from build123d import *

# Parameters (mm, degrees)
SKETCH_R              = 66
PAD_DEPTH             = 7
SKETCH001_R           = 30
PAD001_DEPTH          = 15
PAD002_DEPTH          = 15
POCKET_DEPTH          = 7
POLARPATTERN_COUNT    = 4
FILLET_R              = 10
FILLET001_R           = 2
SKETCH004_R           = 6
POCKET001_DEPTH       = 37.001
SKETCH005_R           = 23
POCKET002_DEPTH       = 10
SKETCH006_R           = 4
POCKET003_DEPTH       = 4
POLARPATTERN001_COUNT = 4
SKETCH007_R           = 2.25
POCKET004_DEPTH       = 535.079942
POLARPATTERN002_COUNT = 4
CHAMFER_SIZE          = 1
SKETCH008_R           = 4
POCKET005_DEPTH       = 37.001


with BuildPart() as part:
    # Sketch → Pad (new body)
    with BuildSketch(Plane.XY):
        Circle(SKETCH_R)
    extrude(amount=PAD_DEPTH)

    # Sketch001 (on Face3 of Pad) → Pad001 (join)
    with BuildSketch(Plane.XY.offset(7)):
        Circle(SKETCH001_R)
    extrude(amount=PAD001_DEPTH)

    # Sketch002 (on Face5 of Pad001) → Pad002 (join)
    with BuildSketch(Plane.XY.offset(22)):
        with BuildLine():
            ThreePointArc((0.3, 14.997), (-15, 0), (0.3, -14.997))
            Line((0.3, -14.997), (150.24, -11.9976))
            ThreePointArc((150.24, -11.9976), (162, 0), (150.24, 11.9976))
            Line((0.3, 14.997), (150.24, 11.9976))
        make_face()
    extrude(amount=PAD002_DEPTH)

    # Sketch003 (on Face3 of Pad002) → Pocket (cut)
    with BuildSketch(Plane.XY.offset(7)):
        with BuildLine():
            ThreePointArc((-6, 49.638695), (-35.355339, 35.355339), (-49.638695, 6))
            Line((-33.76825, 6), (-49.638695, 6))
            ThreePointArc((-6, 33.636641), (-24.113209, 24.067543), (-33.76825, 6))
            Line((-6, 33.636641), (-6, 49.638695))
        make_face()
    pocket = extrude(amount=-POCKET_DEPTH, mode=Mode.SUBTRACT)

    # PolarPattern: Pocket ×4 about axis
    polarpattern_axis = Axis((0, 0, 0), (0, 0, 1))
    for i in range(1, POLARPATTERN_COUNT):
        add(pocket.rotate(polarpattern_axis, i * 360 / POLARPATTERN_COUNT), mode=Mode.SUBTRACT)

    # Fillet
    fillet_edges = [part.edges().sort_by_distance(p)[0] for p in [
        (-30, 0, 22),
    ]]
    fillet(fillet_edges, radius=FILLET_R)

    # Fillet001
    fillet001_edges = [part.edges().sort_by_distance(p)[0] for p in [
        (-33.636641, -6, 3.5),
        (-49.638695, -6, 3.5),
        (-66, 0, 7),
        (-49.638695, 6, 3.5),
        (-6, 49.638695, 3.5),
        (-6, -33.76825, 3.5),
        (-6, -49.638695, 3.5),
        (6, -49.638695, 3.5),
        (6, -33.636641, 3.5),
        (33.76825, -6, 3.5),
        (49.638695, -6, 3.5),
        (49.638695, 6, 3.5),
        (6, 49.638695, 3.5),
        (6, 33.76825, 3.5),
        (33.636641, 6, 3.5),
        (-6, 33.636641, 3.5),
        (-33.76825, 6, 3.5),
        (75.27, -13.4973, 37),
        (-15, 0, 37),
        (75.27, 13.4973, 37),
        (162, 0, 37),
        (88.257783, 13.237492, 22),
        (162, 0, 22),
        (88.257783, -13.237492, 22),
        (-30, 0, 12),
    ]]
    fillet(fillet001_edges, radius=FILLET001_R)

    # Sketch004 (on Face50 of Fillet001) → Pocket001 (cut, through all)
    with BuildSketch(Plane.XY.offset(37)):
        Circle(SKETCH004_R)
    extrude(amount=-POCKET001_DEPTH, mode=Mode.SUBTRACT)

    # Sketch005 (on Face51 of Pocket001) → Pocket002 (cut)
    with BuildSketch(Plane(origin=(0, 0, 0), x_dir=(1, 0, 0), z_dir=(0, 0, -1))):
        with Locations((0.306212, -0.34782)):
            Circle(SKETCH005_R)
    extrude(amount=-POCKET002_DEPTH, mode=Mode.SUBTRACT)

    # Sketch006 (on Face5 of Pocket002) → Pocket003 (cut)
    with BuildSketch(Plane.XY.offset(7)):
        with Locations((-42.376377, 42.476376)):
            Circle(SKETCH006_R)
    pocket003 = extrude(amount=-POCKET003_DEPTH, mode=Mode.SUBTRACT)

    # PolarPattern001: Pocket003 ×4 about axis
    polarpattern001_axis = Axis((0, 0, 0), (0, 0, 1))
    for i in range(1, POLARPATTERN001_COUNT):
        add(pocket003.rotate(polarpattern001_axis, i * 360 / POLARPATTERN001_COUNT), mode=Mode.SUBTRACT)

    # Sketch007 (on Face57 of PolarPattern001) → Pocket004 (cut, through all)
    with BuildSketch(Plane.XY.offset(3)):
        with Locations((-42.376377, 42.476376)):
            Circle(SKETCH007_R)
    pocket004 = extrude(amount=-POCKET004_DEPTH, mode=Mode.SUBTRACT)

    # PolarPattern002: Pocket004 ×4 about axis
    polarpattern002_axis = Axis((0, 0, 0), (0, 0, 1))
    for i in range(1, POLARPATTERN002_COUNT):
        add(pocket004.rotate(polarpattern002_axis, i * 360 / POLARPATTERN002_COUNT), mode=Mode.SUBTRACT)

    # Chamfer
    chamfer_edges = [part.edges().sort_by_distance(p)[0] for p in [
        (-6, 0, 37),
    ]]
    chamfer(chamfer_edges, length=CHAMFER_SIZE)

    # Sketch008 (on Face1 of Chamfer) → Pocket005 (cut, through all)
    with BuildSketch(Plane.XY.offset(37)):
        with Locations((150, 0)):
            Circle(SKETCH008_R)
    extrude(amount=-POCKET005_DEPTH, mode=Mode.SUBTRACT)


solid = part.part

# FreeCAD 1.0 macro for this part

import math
import FreeCAD as App
import Part
import Sketcher
from FreeCAD import Vector


def edges_at(feature, points):
    """Names of the edges that pass closest to the given points."""
    edges = feature.Shape.Edges
    near = lambda p: min(range(len(edges)), key=lambda i: edges[i].distToShape(Part.Vertex(*p))[0])
    return sorted({f"Edge{near(p) + 1}" for p in points})

doc = App.newDocument("Part")
body = doc.addObject("PartDesign::Body", "Body")

# Sketch on XY plane
sketch1 = doc.addObject("Sketcher::SketchObject", "Sketch")
body.addObject(sketch1)
sketch1.AttachmentSupport = (doc.XY_Plane, [""])
sketch1.MapMode = "FlatFace"
sketch1.addGeometry(Part.Circle(Vector(0, 0, 0), Vector(0, 0, 1), 66), False)
sketch1.addConstraint(Sketcher.Constraint("Coincident", 0, 3, -1, 1))
sketch1.addConstraint(Sketcher.Constraint("Diameter", 0, 132.0))
pad1 = doc.addObject("PartDesign::Pad", "Pad")
body.addObject(pad1)
pad1.Profile = sketch1
pad1.Length = 7

# Sketch on XY plane
sketch2 = doc.addObject("Sketcher::SketchObject", "Sketch001")
body.addObject(sketch2)
sketch2.AttachmentSupport = (doc.XY_Plane, [""])
sketch2.MapMode = "FlatFace"
sketch2.AttachmentOffset = App.Placement(Vector(0, 0, 7), App.Rotation())
sketch2.addGeometry(Part.Circle(Vector(0, 0, 0), Vector(0, 0, 1), 30), False)
sketch2.addConstraint(Sketcher.Constraint("Coincident", 0, 3, -1, 1))
sketch2.addConstraint(Sketcher.Constraint("Diameter", 0, 60.0))
pad2 = doc.addObject("PartDesign::Pad", "Pad001")
body.addObject(pad2)
pad2.Profile = sketch2
pad2.Length = 15

# Sketch on XY plane
sketch3 = doc.addObject("Sketcher::SketchObject", "Sketch002")
body.addObject(sketch3)
sketch3.AttachmentSupport = (doc.XY_Plane, [""])
sketch3.MapMode = "FlatFace"
sketch3.AttachmentOffset = App.Placement(Vector(0, 0, 22), App.Rotation())
sketch3.addGeometry(Part.ArcOfCircle(Part.Circle(Vector(0, 0, 0), Vector(0, 0, 1), 15), math.radians(88.854009), math.radians(271.145991)), False)
sketch3.addGeometry(Part.LineSegment(Vector(0.3, -14.997, 0), Vector(150.24, -11.9976, 0)), False)
sketch3.addGeometry(Part.ArcOfCircle(Part.Circle(Vector(150, 0, 0), Vector(0, 0, 1), 12), math.radians(-88.854007), math.radians(88.854007)), False)
sketch3.addGeometry(Part.LineSegment(Vector(150.24, 11.9976, 0), Vector(0.3, 14.997, 0)), False)
sketch3.addConstraint(Sketcher.Constraint("Tangent", 0, 2, 1, 1))
sketch3.addConstraint(Sketcher.Constraint("Tangent", 1, 2, 2, 1))
sketch3.addConstraint(Sketcher.Constraint("Tangent", 2, 2, 3, 1))
sketch3.addConstraint(Sketcher.Constraint("Tangent", 3, 2, 0, 1))
sketch3.addConstraint(Sketcher.Constraint("Coincident", 0, 3, -1, 1))
sketch3.addConstraint(Sketcher.Constraint("PointOnObject", 2, 3, -1))
sketch3.addConstraint(Sketcher.Constraint("Radius", 0, 15.0))
sketch3.addConstraint(Sketcher.Constraint("Radius", 2, 12.0))
sketch3.addConstraint(Sketcher.Constraint("DistanceX", -1, 1, 2, 3, 150.0))
pad3 = doc.addObject("PartDesign::Pad", "Pad002")
body.addObject(pad3)
pad3.Profile = sketch3
pad3.Length = 15

# Sketch on XY plane
sketch4 = doc.addObject("Sketcher::SketchObject", "Sketch003")
body.addObject(sketch4)
sketch4.AttachmentSupport = (doc.XY_Plane, [""])
sketch4.MapMode = "FlatFace"
sketch4.AttachmentOffset = App.Placement(Vector(0, 0, 7), App.Rotation())
sketch4.addGeometry(Part.ArcOfCircle(Part.Circle(Vector(0.000002, -0.000002, 0), Vector(0, 0, 1), 50.000002), math.radians(96.892104), math.radians(173.107896)), False)
sketch4.addGeometry(Part.LineSegment(Vector(-49.638695, 6, 0), Vector(-33.76825, 6, 0)), False)
sketch4.addGeometry(Part.ArcOfCircle(Part.Circle(Vector(0.576671, -0.739913, 0), Vector(0, 0, 1), 35.000001), math.radians(100.830541), math.radians(168.897258)), False)
sketch4.addGeometry(Part.LineSegment(Vector(-6, 33.636641, 0), Vector(-6, 49.638695, 0)), False)
sketch4.addConstraint(Sketcher.Constraint("Coincident", 0, 2, 1, 1))
sketch4.addConstraint(Sketcher.Constraint("Coincident", 1, 2, 2, 2))
sketch4.addConstraint(Sketcher.Constraint("Coincident", 2, 1, 3, 1))
sketch4.addConstraint(Sketcher.Constraint("Coincident", 3, 2, 0, 1))
sketch4.addConstraint(Sketcher.Constraint("Horizontal", 1))
sketch4.addConstraint(Sketcher.Constraint("Vertical", 3))
sketch4.addConstraint(Sketcher.Constraint("Coincident", 0, 3, -1, 1))
sketch4.addConstraint(Sketcher.Constraint("Radius", 2, 35.000001))
sketch4.addConstraint(Sketcher.Constraint("DistanceY", -1, 1, 0, 2, 6.0))
sketch4.addConstraint(Sketcher.Constraint("DistanceX", 2, 1, -1, 1, 6.0))
sketch4.addConstraint(Sketcher.Constraint("Radius", 0, 50.000002))
sketch4.addConstraint(Sketcher.Constraint("DistanceX", 1, 1, 1, 2, 15.870445))
sketch4.addConstraint(Sketcher.Constraint("DistanceY", 3, 1, 3, 2, 16.002054))
pocket1 = doc.addObject("PartDesign::Pocket", "Pocket")
body.addObject(pocket1)
pocket1.Profile = sketch4
pocket1.Length = 7
doc.recompute()

polarpattern = doc.addObject("PartDesign::PolarPattern", "PolarPattern")
body.addObject(polarpattern)
polarpattern.Originals = [pocket1]
polarpattern.Axis = (doc.Z_Axis, [""])
polarpattern.Angle = 360
polarpattern.Occurrences = 4
body.Tip = polarpattern
doc.recompute()

fillet = doc.addObject("PartDesign::Fillet", "Fillet")
body.addObject(fillet)
fillet.Base = (polarpattern, edges_at(polarpattern, [(-30, 0, 22)]))
fillet.Radius = 10
doc.recompute()

fillet2 = doc.addObject("PartDesign::Fillet", "Fillet001")
body.addObject(fillet2)
fillet2.Base = (fillet, edges_at(fillet, [
    (-33.637, -6, 3.5),
    (-49.639, -6, 3.5),
    (-66, 0, 7),
    (-49.639, 6, 3.5),
    (-6, 49.639, 3.5),
    (-6, -33.768, 3.5),
    (-6, -49.639, 3.5),
    (6, -49.639, 3.5),
    (6, -33.637, 3.5),
    (33.768, -6, 3.5),
    (49.639, -6, 3.5),
    (49.639, 6, 3.5),
    (6, 49.639, 3.5),
    (6, 33.768, 3.5),
    (33.637, 6, 3.5),
    (-6, 33.637, 3.5),
    (-33.768, 6, 3.5),
    (75.27, -13.497, 37),
    (-15, 0, 37),
    (75.27, 13.497, 37),
    (162, 0, 37),
    (88.258, 13.237, 22),
    (162, 0, 22),
    (88.258, -13.237, 22),
    (-30, 0, 12),
]))
fillet2.Radius = 2

# Sketch on XY plane
sketch5 = doc.addObject("Sketcher::SketchObject", "Sketch004")
body.addObject(sketch5)
sketch5.AttachmentSupport = (doc.XY_Plane, [""])
sketch5.MapMode = "FlatFace"
sketch5.AttachmentOffset = App.Placement(Vector(0, 0, 37), App.Rotation())
sketch5.addGeometry(Part.Circle(Vector(0, 0, 0), Vector(0, 0, 1), 6), False)
sketch5.addConstraint(Sketcher.Constraint("Coincident", 0, 3, -1, 1))
sketch5.addConstraint(Sketcher.Constraint("Diameter", 0, 12.0))
pocket2 = doc.addObject("PartDesign::Pocket", "Pocket001")
body.addObject(pocket2)
pocket2.Profile = sketch5
pocket2.Type = "ThroughAll"

# Sketch on XY plane
sketch6 = doc.addObject("Sketcher::SketchObject", "Sketch005")
body.addObject(sketch6)
sketch6.AttachmentSupport = (doc.XY_Plane, [""])
sketch6.MapMode = "FlatFace"
sketch6.addGeometry(Part.Circle(Vector(0.306212, 0.34782, 0), Vector(0, 0, 1), 23), False)
sketch6.addConstraint(Sketcher.Constraint("Diameter", 0, 46.0))
sketch6.addConstraint(Sketcher.Constraint("DistanceY", -1, 1, 0, 3, 0.34782))
sketch6.addConstraint(Sketcher.Constraint("DistanceX", -1, 1, 0, 3, 0.306212))
pocket3 = doc.addObject("PartDesign::Pocket", "Pocket002")
body.addObject(pocket3)
pocket3.Profile = sketch6
pocket3.Length = 10
pocket3.Reversed = True

# Sketch on XY plane
sketch7 = doc.addObject("Sketcher::SketchObject", "Sketch006")
body.addObject(sketch7)
sketch7.AttachmentSupport = (doc.XY_Plane, [""])
sketch7.MapMode = "FlatFace"
sketch7.AttachmentOffset = App.Placement(Vector(0, 0, 7), App.Rotation())
sketch7.addGeometry(Part.Circle(Vector(-42.376377, 42.476376, 0), Vector(0, 0, 1), 4), False)
sketch7.addConstraint(Sketcher.Constraint("Diameter", 0, 8.0))
sketch7.addConstraint(Sketcher.Constraint("DistanceX", 0, 3, -1, 1, 42.376377))
sketch7.addConstraint(Sketcher.Constraint("DistanceY", -1, 1, 0, 3, 42.476376))
pocket4 = doc.addObject("PartDesign::Pocket", "Pocket003")
body.addObject(pocket4)
pocket4.Profile = sketch7
pocket4.Length = 4
doc.recompute()

polarpattern2 = doc.addObject("PartDesign::PolarPattern", "PolarPattern001")
body.addObject(polarpattern2)
polarpattern2.Originals = [pocket4]
polarpattern2.Axis = (doc.Z_Axis, [""])
polarpattern2.Angle = 360
polarpattern2.Occurrences = 4
body.Tip = polarpattern2

# Sketch on XY plane
sketch8 = doc.addObject("Sketcher::SketchObject", "Sketch007")
body.addObject(sketch8)
sketch8.AttachmentSupport = (doc.XY_Plane, [""])
sketch8.MapMode = "FlatFace"
sketch8.AttachmentOffset = App.Placement(Vector(0, 0, 3), App.Rotation())
sketch8.addGeometry(Part.Circle(Vector(-42.376377, 42.476376, 0), Vector(0, 0, 1), 2.25), False)
sketch8.addConstraint(Sketcher.Constraint("Diameter", 0, 4.5))
sketch8.addConstraint(Sketcher.Constraint("DistanceX", 0, 3, -1, 1, 42.376377))
sketch8.addConstraint(Sketcher.Constraint("DistanceY", -1, 1, 0, 3, 42.476376))
pocket5 = doc.addObject("PartDesign::Pocket", "Pocket004")
body.addObject(pocket5)
pocket5.Profile = sketch8
pocket5.Type = "ThroughAll"
doc.recompute()

polarpattern3 = doc.addObject("PartDesign::PolarPattern", "PolarPattern002")
body.addObject(polarpattern3)
polarpattern3.Originals = [pocket5]
polarpattern3.Axis = (doc.Z_Axis, [""])
polarpattern3.Angle = 360
polarpattern3.Occurrences = 4
body.Tip = polarpattern3
doc.recompute()

chamfer = doc.addObject("PartDesign::Chamfer", "Chamfer")
body.addObject(chamfer)
chamfer.Base = (polarpattern3, edges_at(polarpattern3, [(-6, 0, 37)]))
chamfer.Size = 1

# Sketch on XY plane
sketch9 = doc.addObject("Sketcher::SketchObject", "Sketch008")
body.addObject(sketch9)
sketch9.AttachmentSupport = (doc.XY_Plane, [""])
sketch9.MapMode = "FlatFace"
sketch9.AttachmentOffset = App.Placement(Vector(0, 0, 37), App.Rotation())
sketch9.addGeometry(Part.Circle(Vector(150, 0, 0), Vector(0, 0, 1), 4), False)
sketch9.addConstraint(Sketcher.Constraint("PointOnObject", 0, 3, -1))
sketch9.addConstraint(Sketcher.Constraint("Diameter", 0, 8.0))
sketch9.addConstraint(Sketcher.Constraint("DistanceX", -1, 1, 0, 3, 150.0))
pocket6 = doc.addObject("PartDesign::Pocket", "Pocket005")
body.addObject(pocket6)
pocket6.Profile = sketch9
pocket6.Type = "ThroughAll"

doc.recompute()
